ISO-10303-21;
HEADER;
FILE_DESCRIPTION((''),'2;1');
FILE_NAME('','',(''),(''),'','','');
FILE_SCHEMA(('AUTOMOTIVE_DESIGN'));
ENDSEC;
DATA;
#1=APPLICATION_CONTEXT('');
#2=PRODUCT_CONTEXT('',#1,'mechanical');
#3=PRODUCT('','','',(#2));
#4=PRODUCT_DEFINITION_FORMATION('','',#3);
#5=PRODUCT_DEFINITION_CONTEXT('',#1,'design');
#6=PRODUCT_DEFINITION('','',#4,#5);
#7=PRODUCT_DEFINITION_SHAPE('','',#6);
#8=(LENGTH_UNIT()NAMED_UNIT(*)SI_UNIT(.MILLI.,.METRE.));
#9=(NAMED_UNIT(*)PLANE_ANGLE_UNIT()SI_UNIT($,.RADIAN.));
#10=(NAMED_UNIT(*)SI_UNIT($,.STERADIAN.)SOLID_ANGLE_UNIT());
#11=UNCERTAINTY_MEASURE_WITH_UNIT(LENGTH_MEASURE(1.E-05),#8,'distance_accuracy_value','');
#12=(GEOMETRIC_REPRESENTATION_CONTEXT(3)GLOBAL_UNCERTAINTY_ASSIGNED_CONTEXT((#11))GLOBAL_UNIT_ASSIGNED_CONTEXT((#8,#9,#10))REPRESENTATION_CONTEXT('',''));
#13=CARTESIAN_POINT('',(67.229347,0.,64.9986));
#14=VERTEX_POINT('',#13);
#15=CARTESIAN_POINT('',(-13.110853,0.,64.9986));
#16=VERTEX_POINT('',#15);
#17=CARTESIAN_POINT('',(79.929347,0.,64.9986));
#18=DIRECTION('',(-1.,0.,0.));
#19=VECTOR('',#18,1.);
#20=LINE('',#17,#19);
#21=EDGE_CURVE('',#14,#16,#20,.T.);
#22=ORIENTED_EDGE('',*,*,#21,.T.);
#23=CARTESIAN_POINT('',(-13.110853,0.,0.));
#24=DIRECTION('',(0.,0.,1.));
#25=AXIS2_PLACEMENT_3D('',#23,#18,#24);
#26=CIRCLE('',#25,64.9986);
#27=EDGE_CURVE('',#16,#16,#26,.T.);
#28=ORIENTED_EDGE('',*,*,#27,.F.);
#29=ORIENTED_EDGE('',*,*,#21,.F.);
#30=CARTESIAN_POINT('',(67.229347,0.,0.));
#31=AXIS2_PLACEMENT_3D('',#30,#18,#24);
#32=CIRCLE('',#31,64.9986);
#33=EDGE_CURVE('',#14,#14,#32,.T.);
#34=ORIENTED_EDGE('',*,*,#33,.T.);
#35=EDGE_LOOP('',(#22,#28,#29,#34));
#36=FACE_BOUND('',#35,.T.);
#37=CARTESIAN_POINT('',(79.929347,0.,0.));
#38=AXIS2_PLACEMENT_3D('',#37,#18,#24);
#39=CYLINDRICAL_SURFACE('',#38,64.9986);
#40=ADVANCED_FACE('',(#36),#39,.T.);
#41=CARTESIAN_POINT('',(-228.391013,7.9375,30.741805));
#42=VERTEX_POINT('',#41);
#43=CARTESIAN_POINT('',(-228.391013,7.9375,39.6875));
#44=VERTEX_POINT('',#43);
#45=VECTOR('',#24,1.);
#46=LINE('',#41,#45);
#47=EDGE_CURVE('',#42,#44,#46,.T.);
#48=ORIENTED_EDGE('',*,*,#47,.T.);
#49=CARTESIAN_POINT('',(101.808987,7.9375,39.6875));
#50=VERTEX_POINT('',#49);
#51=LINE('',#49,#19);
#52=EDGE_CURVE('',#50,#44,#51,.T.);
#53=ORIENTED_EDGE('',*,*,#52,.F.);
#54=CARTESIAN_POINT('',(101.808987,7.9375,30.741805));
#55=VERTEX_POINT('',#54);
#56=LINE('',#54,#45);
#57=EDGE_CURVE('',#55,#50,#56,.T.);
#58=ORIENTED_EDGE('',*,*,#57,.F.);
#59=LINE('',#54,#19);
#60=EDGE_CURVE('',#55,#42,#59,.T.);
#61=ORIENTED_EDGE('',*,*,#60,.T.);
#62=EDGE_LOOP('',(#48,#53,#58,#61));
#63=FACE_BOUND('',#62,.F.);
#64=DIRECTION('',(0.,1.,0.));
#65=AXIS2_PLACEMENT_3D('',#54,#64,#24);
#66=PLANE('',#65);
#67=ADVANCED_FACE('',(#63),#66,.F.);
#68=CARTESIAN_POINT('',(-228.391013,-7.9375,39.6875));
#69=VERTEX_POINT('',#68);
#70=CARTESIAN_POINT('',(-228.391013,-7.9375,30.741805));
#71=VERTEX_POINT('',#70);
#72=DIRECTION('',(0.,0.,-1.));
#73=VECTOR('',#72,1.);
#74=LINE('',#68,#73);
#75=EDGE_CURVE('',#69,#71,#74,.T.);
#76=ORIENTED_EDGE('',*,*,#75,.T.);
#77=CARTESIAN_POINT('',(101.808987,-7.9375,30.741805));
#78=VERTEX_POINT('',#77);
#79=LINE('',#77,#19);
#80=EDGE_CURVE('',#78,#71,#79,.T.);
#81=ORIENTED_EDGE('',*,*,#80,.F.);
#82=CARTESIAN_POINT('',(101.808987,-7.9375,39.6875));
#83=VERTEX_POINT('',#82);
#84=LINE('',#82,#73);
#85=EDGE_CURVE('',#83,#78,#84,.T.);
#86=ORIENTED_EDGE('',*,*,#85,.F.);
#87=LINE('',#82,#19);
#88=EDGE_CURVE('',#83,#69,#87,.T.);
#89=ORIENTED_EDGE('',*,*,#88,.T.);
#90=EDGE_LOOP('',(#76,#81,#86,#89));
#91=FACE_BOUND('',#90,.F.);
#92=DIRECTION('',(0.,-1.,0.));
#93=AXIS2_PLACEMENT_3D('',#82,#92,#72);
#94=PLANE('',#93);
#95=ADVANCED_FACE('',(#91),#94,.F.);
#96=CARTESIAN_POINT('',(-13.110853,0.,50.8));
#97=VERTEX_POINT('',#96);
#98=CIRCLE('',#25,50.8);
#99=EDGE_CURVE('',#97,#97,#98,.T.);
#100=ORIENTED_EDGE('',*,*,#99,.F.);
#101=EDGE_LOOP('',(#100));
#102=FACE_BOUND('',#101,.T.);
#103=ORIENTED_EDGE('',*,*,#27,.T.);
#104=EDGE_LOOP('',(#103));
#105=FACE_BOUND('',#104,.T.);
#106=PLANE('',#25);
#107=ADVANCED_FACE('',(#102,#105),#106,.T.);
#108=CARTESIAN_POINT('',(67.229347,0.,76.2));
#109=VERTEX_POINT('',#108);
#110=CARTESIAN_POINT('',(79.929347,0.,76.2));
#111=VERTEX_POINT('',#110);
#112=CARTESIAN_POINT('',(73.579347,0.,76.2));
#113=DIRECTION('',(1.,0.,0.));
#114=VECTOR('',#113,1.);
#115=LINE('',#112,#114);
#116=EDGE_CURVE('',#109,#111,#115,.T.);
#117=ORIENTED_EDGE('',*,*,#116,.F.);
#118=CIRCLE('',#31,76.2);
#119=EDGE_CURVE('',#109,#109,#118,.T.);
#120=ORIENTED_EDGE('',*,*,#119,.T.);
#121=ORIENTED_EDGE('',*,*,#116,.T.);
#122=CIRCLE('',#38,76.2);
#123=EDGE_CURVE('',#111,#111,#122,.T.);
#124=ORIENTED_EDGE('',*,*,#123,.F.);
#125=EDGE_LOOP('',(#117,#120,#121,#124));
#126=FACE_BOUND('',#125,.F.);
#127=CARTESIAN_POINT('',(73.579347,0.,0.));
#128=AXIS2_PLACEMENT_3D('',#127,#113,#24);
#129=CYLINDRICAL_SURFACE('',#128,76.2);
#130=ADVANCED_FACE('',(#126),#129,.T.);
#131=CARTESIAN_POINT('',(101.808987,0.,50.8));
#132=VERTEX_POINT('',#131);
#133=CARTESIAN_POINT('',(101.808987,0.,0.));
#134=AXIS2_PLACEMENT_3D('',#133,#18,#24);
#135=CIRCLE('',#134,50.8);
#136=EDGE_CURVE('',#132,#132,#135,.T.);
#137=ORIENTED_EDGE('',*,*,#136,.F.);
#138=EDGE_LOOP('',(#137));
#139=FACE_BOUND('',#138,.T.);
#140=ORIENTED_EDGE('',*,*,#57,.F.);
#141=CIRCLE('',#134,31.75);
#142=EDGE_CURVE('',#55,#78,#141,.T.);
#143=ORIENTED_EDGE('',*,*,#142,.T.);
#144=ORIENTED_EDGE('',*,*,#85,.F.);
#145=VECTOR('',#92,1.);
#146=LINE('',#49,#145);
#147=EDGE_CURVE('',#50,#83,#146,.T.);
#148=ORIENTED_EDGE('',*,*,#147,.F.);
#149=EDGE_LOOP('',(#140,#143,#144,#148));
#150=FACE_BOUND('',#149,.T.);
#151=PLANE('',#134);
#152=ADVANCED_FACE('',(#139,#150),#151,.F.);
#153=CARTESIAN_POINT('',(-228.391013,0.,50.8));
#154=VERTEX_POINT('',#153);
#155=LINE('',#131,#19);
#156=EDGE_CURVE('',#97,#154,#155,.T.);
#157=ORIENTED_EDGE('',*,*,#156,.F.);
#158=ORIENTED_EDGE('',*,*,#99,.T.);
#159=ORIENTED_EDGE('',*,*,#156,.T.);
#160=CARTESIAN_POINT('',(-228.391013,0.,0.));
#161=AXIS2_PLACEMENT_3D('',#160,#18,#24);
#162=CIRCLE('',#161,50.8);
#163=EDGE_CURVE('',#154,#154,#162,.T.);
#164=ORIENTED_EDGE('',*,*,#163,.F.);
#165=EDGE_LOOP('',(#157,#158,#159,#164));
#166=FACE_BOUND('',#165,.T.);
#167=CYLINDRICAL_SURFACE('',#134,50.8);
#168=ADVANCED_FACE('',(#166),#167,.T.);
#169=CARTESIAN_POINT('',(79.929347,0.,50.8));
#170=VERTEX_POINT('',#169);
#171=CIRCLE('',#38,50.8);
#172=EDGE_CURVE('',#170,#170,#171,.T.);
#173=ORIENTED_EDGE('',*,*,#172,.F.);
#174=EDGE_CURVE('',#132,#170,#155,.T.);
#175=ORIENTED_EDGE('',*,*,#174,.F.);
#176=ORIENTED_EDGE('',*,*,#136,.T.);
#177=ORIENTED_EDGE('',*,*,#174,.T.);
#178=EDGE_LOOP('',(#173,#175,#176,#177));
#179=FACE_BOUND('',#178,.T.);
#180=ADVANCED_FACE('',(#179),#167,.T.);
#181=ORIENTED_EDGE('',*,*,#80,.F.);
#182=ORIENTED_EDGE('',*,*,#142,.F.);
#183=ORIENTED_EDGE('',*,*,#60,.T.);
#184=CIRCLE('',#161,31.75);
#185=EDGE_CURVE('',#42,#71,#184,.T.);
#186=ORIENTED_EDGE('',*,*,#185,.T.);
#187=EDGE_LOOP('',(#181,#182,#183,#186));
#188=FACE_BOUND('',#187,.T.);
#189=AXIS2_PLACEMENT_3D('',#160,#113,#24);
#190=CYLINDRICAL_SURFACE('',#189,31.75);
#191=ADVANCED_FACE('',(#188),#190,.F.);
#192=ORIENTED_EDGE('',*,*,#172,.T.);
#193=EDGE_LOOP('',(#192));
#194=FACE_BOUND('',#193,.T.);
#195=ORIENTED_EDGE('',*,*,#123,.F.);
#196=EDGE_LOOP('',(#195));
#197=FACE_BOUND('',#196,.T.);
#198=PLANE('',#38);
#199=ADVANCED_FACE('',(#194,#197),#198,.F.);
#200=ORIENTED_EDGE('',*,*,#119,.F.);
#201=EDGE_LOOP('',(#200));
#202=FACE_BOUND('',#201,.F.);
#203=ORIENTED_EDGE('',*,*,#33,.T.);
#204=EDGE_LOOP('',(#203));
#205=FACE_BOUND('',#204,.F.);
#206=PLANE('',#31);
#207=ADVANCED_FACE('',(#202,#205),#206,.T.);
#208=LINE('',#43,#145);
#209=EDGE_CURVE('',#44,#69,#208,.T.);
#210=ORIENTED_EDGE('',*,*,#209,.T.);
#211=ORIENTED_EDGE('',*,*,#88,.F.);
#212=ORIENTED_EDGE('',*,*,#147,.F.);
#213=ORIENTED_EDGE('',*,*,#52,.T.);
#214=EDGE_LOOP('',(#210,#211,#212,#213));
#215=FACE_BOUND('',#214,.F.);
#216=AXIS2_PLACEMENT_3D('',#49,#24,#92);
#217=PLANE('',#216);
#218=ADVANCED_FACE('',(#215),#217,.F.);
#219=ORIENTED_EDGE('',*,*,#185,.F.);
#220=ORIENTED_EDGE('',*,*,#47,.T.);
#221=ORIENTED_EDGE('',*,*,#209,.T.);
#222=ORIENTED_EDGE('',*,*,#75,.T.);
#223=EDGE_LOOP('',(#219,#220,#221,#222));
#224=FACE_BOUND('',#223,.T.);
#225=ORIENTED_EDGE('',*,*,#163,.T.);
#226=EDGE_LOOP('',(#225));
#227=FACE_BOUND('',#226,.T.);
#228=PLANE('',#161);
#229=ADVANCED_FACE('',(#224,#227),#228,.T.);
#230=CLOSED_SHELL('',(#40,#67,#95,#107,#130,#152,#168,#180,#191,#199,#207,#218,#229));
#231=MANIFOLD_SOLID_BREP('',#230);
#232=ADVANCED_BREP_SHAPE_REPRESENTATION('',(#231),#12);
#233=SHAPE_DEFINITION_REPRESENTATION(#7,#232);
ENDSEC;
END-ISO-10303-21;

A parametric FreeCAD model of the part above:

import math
import FreeCAD as App
import Part
import Sketcher
from FreeCAD import Vector
Q = App.Units.Quantity


def add_polygon(sketch, points):
    """Adds a closed chain of lines whose ends are joined by coincident constraints."""
    first, n = sketch.GeometryCount, len(points)
    for a, b in zip(points, points[1:] + points[:1]):
        sketch.addGeometry(Part.LineSegment(App.Vector(*a, 0), App.Vector(*b, 0)), False)
    for i in range(n):
        sketch.addConstraint(Sketcher.Constraint("Coincident", first + i, 2, first + (i + 1) % n, 1))

doc = App.newDocument("Part")
params = doc.addObject("Spreadsheet::Sheet", "Params")
for row, (alias, value) in enumerate([
    ("sketch1_width", "13 in"),
    ("sketch1_height", "1 in"),
    ("sketch1_width2", "0.5 in"),
    ("sketch1_height2", "0.75 in"),
    ("sketch1_width3", "3.163 in"),
    ("revolution_angle", "360 deg"),
    ("sketch2_width", "0.625 in"),
    ("pocket1_length", "13 in"),
], start=1):
    params.set(f"A{row}", alias)
    params.set(f"B{row}", "=" + value)
    params.setAlias(f"B{row}", alias)

body = doc.addObject("PartDesign::Body", "Body")

sketch1 = doc.addObject("Sketcher::SketchObject", "Sketch")
body.addObject(sketch1)
sketch1.AttachmentSupport = (doc.XZ_Plane, [""])
sketch1.MapMode = "FlatFace"
add_polygon(sketch1, [(-228, 32), (102, 32), (102, 51), (80, 51), (80, 76), (67, 76), (67, 65), (-13, 65), (-13, 51), (-228, 51)])
sketch1.addConstraint([
    Sketcher.Constraint("Horizontal", 0),
    Sketcher.Constraint("Vertical", 1),
    Sketcher.Constraint("Horizontal", 2),
    Sketcher.Constraint("Vertical", 3),
    Sketcher.Constraint("Horizontal", 4),
    Sketcher.Constraint("Vertical", 5),
    Sketcher.Constraint("Horizontal", 6),
    Sketcher.Constraint("Vertical", 7),
    Sketcher.Constraint("Horizontal", 8),
    Sketcher.Constraint("Vertical", 9),
    Sketcher.Constraint("Horizontal", 2, 2, 7, 2),
    Sketcher.Constraint("DistanceX", 0, 1, 0, 2, Q("13 in")),
    Sketcher.Constraint("DistanceY", 3, 1, 3, 2, Q("1 in")),
    Sketcher.Constraint("DistanceX", 4, 2, 4, 1, Q("0.5 in")),
    Sketcher.Constraint("DistanceY", -1, 1, 1, 2, Q("2 in")),
    Sketcher.Constraint("DistanceY", 1, 1, 1, 2, Q("0.75 in")),
    Sketcher.Constraint("DistanceX", 6, 2, 6, 1, Q("3.163 in")),
    Sketcher.Constraint("DistanceY", 5, 2, 5, 1, Q("0.441 in")),
    Sketcher.Constraint("DistanceX", 2, 2, 2, 1, Q("21.87964 mm")),
    Sketcher.Constraint("DistanceX", -1, 1, 0, 2, Q("101.808987 mm")),
])
sketch1.setExpression("Constraints[21]", "Params.sketch1_width")
sketch1.setExpression("Constraints[22]", "Params.sketch1_height")
sketch1.setExpression("Constraints[23]", "Params.sketch1_width2")
sketch1.setExpression("Constraints[25]", "Params.sketch1_height2")
sketch1.setExpression("Constraints[26]", "Params.sketch1_width3")
revolution = doc.addObject("PartDesign::Revolution", "Revolution")
body.addObject(revolution)
revolution.Profile = sketch1
revolution.ReferenceAxis = (sketch1, ["H_Axis"])
revolution.setExpression("Angle", "Params.revolution_angle")

sketch2 = doc.addObject("Sketcher::SketchObject", "Sketch001")
body.addObject(sketch2)
sketch2.AttachmentSupport = (doc.YZ_Plane, [""])
sketch2.MapMode = "FlatFace"
sketch2.AttachmentOffset = App.Placement(Vector(0, 0, 101.808987), App.Rotation())
sketch2.addGeometry([
    Part.LineSegment(Vector(8, 31, 0), Vector(8, 40, 0)),
    Part.LineSegment(Vector(8, 40, 0), Vector(-8, 40, 0)),
    Part.LineSegment(Vector(-8, 40, 0), Vector(-8, 31, 0)),
    Part.ArcOfCircle(Part.Circle(Vector(0, 0, 0), Vector(0, 0, 1), 32), math.radians(76), math.radians(104)),
], False)
sketch2.addConstraint([
    Sketcher.Constraint("Coincident", 0, 2, 1, 1),
    Sketcher.Constraint("Coincident", 1, 2, 2, 1),
    Sketcher.Constraint("Coincident", 2, 2, 3, 2),
    Sketcher.Constraint("Coincident", 3, 1, 0, 1),
    Sketcher.Constraint("Vertical", 0),
    Sketcher.Constraint("Horizontal", 1),
    Sketcher.Constraint("Vertical", 2),
    Sketcher.Constraint("Coincident", 3, 3, -1, 1),
    Sketcher.Constraint("Horizontal", 2, 2, 3, 1),
    Sketcher.Constraint("DistanceX", 1, 2, 1, 1, Q("0.625 in")),
    Sketcher.Constraint("DistanceY", -1, 1, 0, 2, Q("1.5625 in")),
    Sketcher.Constraint("Radius", 3, Q("31.749991 mm")),
])
sketch2.setExpression("Constraints[9]", "Params.sketch2_width")
pocket1 = doc.addObject("PartDesign::Pocket", "Pocket")
body.addObject(pocket1)
pocket1.Profile = sketch2
pocket1.setExpression("Length", "Params.pocket1_length")

doc.recompute()
